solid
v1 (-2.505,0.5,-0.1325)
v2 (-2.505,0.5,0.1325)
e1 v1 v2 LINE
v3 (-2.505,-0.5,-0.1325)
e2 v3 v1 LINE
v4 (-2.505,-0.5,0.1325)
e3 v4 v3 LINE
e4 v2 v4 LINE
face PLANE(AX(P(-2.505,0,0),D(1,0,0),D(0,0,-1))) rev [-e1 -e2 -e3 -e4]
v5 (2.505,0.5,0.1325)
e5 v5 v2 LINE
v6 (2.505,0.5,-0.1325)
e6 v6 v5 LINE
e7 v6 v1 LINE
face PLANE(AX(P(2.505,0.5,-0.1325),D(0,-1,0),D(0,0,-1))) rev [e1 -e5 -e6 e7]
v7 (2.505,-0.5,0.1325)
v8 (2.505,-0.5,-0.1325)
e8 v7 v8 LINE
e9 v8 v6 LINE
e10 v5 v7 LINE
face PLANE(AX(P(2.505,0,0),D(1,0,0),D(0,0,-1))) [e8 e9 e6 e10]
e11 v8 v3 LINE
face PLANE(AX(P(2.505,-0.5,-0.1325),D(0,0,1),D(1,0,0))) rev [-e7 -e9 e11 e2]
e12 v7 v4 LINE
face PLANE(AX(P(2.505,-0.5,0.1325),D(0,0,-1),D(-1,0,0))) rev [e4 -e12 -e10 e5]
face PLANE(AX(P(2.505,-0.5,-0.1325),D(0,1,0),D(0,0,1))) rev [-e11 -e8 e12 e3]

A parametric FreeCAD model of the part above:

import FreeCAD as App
import Part
import Sketcher
Q = App.Units.Quantity

doc = App.newDocument("Part")
body = doc.addObject("PartDesign::Body", "Body")

# Sketch on YZ plane
sketch1 = body.newObject("Sketcher::SketchObject", "Sketch")
sketch1.AttachmentSupport = (doc.getObject("YZ_Plane"), [""])
sketch1.MapMode = "FlatFace"
sketch1.addGeometry(Part.LineSegment(App.Vector(0.5, 0.1325, 0), App.Vector(-0.5, 0.1325, 0)), False)
sketch1.addGeometry(Part.LineSegment(App.Vector(-0.5, 0.1325, 0), App.Vector(-0.5, -0.1325, 0)), False)
sketch1.addGeometry(Part.LineSegment(App.Vector(-0.5, -0.1325, 0), App.Vector(0.5, -0.1325, 0)), False)
sketch1.addGeometry(Part.LineSegment(App.Vector(0.5, -0.1325, 0), App.Vector(0.5, 0.1325, 0)), False)
sketch1.addConstraint(Sketcher.Constraint("Coincident", 0, 2, 1, 1))
sketch1.addConstraint(Sketcher.Constraint("Coincident", 1, 2, 2, 1))
sketch1.addConstraint(Sketcher.Constraint("Coincident", 2, 2, 3, 1))
sketch1.addConstraint(Sketcher.Constraint("Coincident", 3, 2, 0, 1))
sketch1.addConstraint(Sketcher.Constraint("Horizontal", 0))
sketch1.addConstraint(Sketcher.Constraint("Vertical", 1))
sketch1.addConstraint(Sketcher.Constraint("Horizontal", 2))
sketch1.addConstraint(Sketcher.Constraint("Vertical", 3))
sketch1.addConstraint(Sketcher.Constraint("Symmetric", 0, 2, 2, 2, -1, 1))
sketch1.addConstraint(Sketcher.Constraint("DistanceX", 0, 2, 0, 1, Q("1 mm")))
sketch1.addConstraint(Sketcher.Constraint("DistanceY", 1, 2, 1, 1, Q("0.265 mm")))
pad1 = body.newObject("PartDesign::Pad", "Pad")
pad1.Profile = sketch1
pad1.Length = 5.01
pad1.Midplane = True

doc.recompute()
